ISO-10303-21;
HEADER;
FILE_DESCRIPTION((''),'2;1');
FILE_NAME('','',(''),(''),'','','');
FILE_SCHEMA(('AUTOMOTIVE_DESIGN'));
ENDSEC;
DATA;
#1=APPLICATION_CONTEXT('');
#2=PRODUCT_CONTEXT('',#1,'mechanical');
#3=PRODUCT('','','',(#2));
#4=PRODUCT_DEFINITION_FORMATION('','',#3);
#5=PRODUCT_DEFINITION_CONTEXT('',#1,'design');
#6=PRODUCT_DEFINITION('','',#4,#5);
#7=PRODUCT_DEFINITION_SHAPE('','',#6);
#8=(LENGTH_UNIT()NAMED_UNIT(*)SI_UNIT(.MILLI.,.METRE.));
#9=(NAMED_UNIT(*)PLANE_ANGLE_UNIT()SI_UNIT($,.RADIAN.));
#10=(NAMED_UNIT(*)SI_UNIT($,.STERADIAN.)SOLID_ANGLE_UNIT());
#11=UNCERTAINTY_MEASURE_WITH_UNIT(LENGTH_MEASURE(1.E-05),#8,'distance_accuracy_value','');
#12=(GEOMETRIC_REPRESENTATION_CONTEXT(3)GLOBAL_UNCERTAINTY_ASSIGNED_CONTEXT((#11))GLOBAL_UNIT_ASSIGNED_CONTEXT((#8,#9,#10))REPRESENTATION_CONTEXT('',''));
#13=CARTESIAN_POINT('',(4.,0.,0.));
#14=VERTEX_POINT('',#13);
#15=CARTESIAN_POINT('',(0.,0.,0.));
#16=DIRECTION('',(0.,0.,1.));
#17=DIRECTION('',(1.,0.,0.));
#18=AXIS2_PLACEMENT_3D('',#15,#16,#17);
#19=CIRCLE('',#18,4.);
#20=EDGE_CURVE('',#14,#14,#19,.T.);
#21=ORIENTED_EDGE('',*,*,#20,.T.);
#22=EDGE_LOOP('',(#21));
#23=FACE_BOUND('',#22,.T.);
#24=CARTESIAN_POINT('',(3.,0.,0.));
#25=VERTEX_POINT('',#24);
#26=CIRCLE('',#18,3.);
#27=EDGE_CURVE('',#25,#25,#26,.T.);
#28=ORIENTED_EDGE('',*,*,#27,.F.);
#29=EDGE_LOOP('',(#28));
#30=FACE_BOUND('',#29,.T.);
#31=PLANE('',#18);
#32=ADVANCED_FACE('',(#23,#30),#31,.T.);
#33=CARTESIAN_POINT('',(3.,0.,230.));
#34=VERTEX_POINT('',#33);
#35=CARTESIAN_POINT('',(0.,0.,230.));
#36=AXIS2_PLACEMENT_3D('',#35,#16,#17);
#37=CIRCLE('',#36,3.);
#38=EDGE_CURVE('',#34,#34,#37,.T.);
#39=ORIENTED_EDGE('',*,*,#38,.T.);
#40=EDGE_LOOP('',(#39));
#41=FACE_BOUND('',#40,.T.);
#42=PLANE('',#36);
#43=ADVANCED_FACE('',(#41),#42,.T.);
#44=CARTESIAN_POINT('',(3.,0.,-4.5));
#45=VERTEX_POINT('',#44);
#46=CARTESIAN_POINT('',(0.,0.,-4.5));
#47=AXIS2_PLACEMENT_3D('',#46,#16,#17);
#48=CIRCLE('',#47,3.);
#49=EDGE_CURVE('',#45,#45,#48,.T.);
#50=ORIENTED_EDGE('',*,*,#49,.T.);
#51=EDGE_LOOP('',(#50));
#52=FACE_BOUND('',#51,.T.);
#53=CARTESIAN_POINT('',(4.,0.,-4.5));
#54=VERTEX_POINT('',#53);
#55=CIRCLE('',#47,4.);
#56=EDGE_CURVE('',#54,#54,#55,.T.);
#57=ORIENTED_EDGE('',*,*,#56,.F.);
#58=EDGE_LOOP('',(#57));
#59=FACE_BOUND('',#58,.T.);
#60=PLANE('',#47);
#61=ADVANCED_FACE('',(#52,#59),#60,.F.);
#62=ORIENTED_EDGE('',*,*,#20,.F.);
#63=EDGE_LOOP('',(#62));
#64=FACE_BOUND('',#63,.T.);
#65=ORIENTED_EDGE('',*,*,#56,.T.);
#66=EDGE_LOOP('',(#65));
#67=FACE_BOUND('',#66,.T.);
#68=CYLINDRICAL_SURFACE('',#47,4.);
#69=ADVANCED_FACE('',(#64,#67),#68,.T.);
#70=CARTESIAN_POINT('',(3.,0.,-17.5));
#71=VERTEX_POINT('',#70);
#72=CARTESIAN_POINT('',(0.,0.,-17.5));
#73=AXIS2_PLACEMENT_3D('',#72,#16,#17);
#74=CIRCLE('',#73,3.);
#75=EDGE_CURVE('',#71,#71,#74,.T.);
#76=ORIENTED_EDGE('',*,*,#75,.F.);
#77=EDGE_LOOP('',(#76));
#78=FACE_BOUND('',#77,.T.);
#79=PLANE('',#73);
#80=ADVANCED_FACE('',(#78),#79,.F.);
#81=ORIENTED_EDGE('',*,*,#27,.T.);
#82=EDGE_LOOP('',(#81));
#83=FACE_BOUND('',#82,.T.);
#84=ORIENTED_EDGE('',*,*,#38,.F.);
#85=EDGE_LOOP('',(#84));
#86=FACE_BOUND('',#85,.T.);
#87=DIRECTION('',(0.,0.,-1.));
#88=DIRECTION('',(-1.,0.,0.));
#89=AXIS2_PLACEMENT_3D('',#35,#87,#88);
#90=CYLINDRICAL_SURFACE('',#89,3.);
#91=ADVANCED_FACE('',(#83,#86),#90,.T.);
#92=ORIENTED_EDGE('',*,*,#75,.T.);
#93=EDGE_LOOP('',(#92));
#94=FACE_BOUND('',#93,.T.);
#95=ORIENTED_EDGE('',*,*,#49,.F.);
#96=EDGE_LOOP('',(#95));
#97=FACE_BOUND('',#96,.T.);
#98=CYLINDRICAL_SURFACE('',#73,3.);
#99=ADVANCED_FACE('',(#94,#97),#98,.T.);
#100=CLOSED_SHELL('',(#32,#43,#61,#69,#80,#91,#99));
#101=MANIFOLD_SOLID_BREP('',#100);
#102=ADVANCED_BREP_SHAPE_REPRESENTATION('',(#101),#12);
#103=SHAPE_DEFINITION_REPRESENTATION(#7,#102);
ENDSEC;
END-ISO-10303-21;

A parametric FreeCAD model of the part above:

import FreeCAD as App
import Part
import Sketcher

V = App.Vector
Q = App.Units.Quantity

doc = App.newDocument("Part")
body = doc.addObject("PartDesign::Body", "Body")

# Sketch on XY plane
sketch1 = body.newObject("Sketcher::SketchObject", "Sketch")
sketch1.AttachmentSupport = (doc.getObject("XY_Plane"), [""])
sketch1.MapMode = "FlatFace"
sketch1.addGeometry(Part.Circle(V(0, 0, 0), V(0, 0, 1), 3), False)
sketch1.addConstraint(Sketcher.Constraint("Coincident", 0, 3, -1, 1))
sketch1.addConstraint(Sketcher.Constraint("Diameter", 0, Q("6 mm")))
pad1 = body.newObject("PartDesign::Pad", "Pad")
pad1.Profile = sketch1
pad1.Length = 230

# Sketch on XY plane
sketch2 = body.newObject("Sketcher::SketchObject", "Sketch001")
sketch2.AttachmentSupport = (doc.getObject("XY_Plane"), [""])
sketch2.MapMode = "FlatFace"
sketch2.addGeometry(Part.Circle(V(0, 0, 0), V(0, 0, 1), 4), False)
sketch2.addConstraint(Sketcher.Constraint("Coincident", 0, 3, -1, 1))
sketch2.addConstraint(Sketcher.Constraint("Diameter", 0, Q("8 mm")))
pad2 = body.newObject("PartDesign::Pad", "Pad001")
pad2.Profile = sketch2
pad2.Length = 4.5
pad2.Reversed = True

# Sketch on XY plane
sketch3 = body.newObject("Sketcher::SketchObject", "Sketch002")
sketch3.AttachmentSupport = (doc.getObject("XY_Plane"), [""])
sketch3.MapMode = "FlatFace"
sketch3.AttachmentOffset = App.Placement(V(0, 0, -17.5), App.Rotation())
sketch3.addGeometry(Part.Circle(V(0, 0, 0), V(0, 0, 1), 3), False)
sketch3.addConstraint(Sketcher.Constraint("Coincident", 0, 3, -1, 1))
sketch3.addConstraint(Sketcher.Constraint("Diameter", 0, Q("6 mm")))
pad3 = body.newObject("PartDesign::Pad", "Pad002")
pad3.Profile = sketch3
pad3.Length = 17.5

doc.recompute()
